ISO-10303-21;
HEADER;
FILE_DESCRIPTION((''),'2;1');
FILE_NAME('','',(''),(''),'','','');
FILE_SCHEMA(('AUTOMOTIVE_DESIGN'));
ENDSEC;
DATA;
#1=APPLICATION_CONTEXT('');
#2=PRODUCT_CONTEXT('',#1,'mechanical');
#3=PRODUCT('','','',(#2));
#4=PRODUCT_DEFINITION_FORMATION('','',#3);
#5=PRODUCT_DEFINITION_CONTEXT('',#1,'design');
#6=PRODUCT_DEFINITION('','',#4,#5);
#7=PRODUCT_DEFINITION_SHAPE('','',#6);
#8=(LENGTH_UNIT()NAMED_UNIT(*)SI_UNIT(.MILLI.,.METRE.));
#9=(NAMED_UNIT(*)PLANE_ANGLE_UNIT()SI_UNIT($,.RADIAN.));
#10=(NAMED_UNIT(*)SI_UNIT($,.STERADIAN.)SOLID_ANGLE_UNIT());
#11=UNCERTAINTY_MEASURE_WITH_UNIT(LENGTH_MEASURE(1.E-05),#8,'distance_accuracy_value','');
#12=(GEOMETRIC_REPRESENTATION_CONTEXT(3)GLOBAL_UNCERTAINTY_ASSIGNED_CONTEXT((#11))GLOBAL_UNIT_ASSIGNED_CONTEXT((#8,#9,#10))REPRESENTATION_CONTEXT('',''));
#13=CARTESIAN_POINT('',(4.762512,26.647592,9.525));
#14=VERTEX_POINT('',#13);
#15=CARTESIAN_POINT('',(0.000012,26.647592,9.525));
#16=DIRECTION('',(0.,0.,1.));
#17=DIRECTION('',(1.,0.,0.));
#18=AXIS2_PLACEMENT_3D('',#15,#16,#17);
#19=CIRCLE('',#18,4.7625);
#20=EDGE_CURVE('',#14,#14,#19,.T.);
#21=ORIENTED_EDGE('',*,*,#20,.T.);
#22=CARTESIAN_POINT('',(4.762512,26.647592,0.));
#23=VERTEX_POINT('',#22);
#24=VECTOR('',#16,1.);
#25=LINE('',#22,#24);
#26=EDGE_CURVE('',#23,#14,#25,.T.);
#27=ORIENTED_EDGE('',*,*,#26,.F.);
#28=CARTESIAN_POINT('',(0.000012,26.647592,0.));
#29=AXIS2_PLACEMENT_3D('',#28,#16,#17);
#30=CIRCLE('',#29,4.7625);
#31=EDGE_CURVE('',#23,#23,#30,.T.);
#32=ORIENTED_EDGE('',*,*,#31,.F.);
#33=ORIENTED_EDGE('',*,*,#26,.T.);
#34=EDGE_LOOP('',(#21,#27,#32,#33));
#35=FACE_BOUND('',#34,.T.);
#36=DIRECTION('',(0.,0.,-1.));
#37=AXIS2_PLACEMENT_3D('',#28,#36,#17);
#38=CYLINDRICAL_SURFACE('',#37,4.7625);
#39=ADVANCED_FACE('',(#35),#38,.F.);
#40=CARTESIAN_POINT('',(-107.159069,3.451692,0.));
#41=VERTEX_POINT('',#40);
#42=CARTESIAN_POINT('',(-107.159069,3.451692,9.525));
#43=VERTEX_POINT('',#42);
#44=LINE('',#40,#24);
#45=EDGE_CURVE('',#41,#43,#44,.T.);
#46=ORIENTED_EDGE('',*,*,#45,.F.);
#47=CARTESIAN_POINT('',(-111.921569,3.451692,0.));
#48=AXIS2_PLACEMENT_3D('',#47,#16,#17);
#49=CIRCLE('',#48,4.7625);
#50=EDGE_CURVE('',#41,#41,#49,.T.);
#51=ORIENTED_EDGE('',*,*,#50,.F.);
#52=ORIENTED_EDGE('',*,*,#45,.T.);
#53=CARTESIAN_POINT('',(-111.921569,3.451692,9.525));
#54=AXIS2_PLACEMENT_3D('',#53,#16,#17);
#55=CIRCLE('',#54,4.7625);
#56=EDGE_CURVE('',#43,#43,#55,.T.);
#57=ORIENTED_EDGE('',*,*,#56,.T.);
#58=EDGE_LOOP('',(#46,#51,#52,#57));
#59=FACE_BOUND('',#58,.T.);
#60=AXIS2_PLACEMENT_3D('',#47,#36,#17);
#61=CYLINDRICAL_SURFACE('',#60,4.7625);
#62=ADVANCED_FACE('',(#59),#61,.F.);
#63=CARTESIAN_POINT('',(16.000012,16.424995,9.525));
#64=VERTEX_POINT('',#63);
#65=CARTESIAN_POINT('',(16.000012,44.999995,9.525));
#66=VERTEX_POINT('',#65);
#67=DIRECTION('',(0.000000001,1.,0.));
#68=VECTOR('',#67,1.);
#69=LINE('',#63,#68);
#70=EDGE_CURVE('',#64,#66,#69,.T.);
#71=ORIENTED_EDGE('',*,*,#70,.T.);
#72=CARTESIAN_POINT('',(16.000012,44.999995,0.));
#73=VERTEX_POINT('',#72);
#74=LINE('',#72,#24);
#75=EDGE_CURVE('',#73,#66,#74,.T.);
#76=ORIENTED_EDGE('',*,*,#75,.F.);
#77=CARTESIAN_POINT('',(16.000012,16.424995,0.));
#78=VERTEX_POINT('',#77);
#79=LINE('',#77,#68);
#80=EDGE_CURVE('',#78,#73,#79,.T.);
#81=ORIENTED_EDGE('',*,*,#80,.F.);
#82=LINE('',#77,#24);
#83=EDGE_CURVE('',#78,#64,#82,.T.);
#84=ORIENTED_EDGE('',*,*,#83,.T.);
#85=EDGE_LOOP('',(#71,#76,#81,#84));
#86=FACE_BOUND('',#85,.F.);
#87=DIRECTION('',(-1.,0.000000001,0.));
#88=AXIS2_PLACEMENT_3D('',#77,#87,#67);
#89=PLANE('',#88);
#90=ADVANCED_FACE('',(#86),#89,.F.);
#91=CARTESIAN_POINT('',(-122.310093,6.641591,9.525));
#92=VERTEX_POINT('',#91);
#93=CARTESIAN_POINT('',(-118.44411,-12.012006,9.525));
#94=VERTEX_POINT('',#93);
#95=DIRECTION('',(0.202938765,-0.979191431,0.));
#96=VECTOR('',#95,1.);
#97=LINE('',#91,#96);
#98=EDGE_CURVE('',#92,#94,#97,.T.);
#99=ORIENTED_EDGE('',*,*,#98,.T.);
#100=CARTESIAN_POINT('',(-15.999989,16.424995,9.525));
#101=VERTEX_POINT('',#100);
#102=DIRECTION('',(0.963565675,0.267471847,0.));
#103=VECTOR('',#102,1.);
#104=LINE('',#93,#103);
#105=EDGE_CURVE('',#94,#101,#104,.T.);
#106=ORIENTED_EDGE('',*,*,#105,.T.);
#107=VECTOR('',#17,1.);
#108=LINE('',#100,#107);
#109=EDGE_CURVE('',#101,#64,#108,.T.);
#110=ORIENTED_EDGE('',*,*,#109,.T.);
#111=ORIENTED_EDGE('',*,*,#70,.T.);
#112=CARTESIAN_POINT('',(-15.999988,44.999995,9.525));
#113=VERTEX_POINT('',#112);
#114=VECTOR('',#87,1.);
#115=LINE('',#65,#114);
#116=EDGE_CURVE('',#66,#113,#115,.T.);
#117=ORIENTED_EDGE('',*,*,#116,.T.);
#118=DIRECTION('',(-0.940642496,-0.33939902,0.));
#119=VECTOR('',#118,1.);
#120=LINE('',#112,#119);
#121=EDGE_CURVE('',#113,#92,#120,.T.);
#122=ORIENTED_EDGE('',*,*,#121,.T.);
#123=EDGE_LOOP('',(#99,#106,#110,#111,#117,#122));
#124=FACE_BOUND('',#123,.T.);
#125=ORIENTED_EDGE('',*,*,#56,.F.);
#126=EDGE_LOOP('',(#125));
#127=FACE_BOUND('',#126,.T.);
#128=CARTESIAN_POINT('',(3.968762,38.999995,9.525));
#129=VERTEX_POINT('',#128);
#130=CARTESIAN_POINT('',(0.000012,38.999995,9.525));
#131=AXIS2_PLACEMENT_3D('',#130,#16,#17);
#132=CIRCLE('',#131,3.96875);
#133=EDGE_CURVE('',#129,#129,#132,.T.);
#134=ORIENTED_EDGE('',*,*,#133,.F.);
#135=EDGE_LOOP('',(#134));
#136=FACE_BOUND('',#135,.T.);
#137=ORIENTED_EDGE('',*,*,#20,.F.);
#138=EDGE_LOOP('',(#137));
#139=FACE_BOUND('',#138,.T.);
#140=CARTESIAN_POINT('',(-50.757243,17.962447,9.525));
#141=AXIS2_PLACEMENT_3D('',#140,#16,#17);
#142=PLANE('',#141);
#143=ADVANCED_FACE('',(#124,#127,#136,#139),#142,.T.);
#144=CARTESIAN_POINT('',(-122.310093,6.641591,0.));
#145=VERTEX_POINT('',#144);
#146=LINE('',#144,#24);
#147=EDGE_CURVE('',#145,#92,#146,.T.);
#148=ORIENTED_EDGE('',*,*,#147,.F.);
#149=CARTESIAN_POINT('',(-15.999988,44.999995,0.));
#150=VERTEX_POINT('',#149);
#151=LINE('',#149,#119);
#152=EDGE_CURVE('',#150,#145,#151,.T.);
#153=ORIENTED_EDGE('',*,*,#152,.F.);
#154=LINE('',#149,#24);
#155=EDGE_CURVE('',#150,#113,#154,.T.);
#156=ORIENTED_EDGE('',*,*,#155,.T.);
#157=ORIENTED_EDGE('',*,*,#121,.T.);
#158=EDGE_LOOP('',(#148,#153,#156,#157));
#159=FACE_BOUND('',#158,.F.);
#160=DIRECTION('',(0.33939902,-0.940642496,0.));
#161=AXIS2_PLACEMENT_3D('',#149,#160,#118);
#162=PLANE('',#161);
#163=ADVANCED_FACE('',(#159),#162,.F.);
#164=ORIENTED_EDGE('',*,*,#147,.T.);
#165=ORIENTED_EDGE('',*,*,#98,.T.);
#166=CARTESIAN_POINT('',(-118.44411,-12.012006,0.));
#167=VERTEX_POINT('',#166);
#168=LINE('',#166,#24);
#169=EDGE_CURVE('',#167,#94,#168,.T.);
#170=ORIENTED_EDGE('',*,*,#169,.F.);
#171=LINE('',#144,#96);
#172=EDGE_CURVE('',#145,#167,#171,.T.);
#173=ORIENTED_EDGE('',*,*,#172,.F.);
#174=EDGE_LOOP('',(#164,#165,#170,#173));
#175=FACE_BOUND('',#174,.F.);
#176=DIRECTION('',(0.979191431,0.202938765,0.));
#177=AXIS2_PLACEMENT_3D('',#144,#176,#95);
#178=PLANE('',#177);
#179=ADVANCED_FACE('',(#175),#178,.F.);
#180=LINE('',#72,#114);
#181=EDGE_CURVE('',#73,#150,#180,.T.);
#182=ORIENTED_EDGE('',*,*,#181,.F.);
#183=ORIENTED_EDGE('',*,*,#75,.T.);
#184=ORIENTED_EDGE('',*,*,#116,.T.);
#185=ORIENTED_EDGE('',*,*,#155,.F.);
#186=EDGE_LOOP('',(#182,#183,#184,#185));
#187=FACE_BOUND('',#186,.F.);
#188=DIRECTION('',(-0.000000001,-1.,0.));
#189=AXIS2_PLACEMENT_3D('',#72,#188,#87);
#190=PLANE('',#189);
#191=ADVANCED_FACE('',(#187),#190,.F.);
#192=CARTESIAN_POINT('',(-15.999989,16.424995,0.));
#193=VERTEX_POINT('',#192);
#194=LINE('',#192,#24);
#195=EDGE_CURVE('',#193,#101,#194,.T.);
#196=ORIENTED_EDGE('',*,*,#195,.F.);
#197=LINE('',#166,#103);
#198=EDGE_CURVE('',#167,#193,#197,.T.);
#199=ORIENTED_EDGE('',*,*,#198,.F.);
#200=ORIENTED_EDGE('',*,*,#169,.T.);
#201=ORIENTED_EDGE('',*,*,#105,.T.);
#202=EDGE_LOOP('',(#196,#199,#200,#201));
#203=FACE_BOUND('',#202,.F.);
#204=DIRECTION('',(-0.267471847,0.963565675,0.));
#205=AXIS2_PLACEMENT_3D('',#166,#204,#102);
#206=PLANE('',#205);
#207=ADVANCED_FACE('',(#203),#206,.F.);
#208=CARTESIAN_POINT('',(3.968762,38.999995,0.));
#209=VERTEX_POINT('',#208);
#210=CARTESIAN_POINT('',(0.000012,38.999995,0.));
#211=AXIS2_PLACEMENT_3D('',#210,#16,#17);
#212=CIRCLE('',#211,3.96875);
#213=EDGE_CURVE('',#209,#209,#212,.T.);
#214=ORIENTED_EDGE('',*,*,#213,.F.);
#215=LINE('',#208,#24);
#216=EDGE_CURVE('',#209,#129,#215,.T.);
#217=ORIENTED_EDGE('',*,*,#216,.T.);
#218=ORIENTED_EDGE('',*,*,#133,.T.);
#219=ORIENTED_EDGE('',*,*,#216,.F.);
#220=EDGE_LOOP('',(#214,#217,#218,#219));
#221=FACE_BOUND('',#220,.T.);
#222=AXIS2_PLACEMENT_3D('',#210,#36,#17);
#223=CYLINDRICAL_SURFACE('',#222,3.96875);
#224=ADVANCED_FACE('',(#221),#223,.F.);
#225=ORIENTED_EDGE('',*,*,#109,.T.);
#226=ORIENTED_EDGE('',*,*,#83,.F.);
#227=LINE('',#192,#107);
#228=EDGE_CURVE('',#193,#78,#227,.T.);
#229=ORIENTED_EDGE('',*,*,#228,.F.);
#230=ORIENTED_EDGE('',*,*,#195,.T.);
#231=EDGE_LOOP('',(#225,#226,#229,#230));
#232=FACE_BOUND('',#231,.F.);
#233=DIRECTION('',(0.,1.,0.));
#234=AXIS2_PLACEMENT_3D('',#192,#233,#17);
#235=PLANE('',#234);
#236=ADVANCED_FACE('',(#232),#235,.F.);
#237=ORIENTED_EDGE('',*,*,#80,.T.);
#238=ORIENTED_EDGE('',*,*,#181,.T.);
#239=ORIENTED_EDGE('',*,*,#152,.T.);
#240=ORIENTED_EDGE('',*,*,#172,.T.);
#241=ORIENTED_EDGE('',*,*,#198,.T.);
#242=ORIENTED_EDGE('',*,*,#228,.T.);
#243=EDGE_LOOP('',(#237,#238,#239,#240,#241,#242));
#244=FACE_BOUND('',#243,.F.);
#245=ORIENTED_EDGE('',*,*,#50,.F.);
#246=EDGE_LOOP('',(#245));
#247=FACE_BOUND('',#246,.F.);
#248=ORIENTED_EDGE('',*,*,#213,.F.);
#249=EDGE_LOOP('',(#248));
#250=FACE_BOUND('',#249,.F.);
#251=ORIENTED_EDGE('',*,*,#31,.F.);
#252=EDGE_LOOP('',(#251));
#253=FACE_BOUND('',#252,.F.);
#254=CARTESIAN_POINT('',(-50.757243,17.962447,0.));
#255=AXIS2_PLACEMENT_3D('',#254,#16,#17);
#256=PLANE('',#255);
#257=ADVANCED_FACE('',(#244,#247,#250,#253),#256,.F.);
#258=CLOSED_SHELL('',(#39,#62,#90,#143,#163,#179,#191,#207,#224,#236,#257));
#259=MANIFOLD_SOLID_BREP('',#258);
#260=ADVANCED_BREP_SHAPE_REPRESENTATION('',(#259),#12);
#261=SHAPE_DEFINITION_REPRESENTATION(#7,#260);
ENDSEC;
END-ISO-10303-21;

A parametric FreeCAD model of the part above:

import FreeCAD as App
import Part
import Sketcher
Q = App.Units.Quantity


def add_polygon(sketch, points):
    """Adds a closed chain of lines whose ends are joined by coincident constraints."""
    first, n = sketch.GeometryCount, len(points)
    for a, b in zip(points, points[1:] + points[:1]):
        sketch.addGeometry(Part.LineSegment(App.Vector(*a, 0), App.Vector(*b, 0)), False)
    for i in range(n):
        sketch.addConstraint(Sketcher.Constraint("Coincident", first + i, 2, first + (i + 1) % n, 1))

doc = App.newDocument("Part")
body = doc.addObject("PartDesign::Body", "Body")

# Sketch on XY plane
sketch1 = body.newObject("Sketcher::SketchObject", "Sketch")
sketch1.AttachmentSupport = (doc.getObject("XY_Plane"), [""])
sketch1.MapMode = "FlatFace"
add_polygon(sketch1, [(-15.999988, 44.999995), (-122.310093, 6.641591), (-118.44411, -12.012006), (-15.999989, 16.424995), (16.000012, 16.424995), (16.000012, 44.999995)])  # lines 0-5
sketch1.addGeometry(Part.Circle(App.Vector(-111.921569, 3.451692, 0), App.Vector(0, 0, 1), 4.7625), False)  # 6
sketch1.addGeometry(Part.Circle(App.Vector(0.000012, 26.647592, 0), App.Vector(0, 0, 1), 4.7625), False)  # 7
sketch1.addGeometry(Part.Circle(App.Vector(0.000012, 38.999995, 0), App.Vector(0, 0, 1), 3.96875), False)  # 8
sketch1.addConstraint(Sketcher.Constraint("Horizontal", 3))
sketch1.addConstraint(Sketcher.Constraint("Vertical", 4))
sketch1.addConstraint(Sketcher.Constraint("Horizontal", 5))
sketch1.addConstraint(Sketcher.Constraint("Equal", 6, 7))
sketch1.addConstraint(Sketcher.Constraint("Vertical", 7, 3, 8, 3))
sketch1.addConstraint(Sketcher.Constraint("Vertical", 2, 2, 5, 2))
sketch1.addConstraint(Sketcher.Constraint("Diameter", 6, Q("0.375 in")))
sketch1.addConstraint(Sketcher.Constraint("Diameter", 8, Q("0.3125 in")))
sketch1.addConstraint(Sketcher.Constraint("Distance", 1, Q("0.75 in")))
sketch1.addConstraint(Sketcher.Constraint("DistanceY", 4, 1, 4, 2, Q("1.125 in")))
sketch1.addConstraint(Sketcher.Constraint("DistanceX", 3, 1, 3, 2, 32.0))
sketch1.addConstraint(Sketcher.Constraint("DistanceY", 6, 3, 7, 3, 23.195901))
sketch1.addConstraint(Sketcher.Constraint("DistanceY", 6, 3, 0, 2, 3.189899))
sketch1.addConstraint(Sketcher.Constraint("DistanceY", 1, 2, 7, 3, 38.659598))
sketch1.addConstraint(Sketcher.Constraint("DistanceY", 1, 2, 8, 3, 51.012001))
sketch1.addConstraint(Sketcher.Constraint("DistanceX", 2, 2, 7, 3, 16.0))
sketch1.addConstraint(Sketcher.Constraint("DistanceY", 2, 2, 8, 3, 22.575))
sketch1.addConstraint(Sketcher.Constraint("DistanceX", 6, 3, -1, 1, 111.921569))
sketch1.addConstraint(Sketcher.Constraint("DistanceY", -1, 1, 6, 3, 3.451692))
sketch1.addConstraint(Sketcher.Constraint("DistanceX", 1, 2, -1, 1, 118.44411))
sketch1.addConstraint(Sketcher.Constraint("DistanceX", 2, 2, -1, 1, 15.999989))
pad1 = body.newObject("PartDesign::Pad", "Pad")
pad1.Profile = sketch1
pad1.Length = Q("0.375 in")

doc.recompute()
